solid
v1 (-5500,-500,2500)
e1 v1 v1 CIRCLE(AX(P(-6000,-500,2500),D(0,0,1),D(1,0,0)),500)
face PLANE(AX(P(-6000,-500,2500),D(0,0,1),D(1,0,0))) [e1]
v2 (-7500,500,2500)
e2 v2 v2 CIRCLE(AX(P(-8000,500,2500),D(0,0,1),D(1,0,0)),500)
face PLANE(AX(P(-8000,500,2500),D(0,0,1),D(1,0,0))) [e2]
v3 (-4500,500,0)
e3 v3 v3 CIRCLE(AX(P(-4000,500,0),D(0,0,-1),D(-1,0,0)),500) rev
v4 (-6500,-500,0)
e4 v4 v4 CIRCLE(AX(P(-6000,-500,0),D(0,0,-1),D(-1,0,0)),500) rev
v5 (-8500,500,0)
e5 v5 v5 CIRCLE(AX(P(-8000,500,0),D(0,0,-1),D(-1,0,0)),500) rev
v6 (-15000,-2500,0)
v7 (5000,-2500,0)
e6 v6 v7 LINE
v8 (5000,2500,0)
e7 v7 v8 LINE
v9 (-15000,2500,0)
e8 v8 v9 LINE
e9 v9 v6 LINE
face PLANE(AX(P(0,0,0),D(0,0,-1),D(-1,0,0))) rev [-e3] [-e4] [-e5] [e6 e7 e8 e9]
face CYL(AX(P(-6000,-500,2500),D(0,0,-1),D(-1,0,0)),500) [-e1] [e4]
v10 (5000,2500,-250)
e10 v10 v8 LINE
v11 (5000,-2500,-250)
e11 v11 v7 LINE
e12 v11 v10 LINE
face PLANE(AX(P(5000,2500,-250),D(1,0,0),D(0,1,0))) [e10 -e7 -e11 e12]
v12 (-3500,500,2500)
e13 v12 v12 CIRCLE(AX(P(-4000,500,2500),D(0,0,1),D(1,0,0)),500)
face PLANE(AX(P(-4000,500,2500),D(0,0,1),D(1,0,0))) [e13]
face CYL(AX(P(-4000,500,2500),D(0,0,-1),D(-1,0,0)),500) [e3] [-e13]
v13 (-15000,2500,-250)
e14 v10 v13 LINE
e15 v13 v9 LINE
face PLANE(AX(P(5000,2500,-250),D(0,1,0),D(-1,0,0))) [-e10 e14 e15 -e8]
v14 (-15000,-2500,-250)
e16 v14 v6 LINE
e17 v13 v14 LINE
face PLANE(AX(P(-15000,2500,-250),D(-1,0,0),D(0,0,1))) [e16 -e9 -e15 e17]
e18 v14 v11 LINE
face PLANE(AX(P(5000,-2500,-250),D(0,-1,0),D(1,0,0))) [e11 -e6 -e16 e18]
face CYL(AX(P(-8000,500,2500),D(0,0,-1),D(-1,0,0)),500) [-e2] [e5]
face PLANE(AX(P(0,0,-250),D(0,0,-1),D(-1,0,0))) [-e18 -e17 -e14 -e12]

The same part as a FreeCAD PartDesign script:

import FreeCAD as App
import Part
import Sketcher
from FreeCAD import Vector

doc = App.newDocument("Part")
params = doc.addObject("Spreadsheet::Sheet", "Params")
for row, (alias, value) in enumerate([
    ("sketch1_width", "20000 mm"),
    ("sketch1_height", "5000 mm"),
    ("pad1_length", "250 mm"),
    ("sketch2_diameter", "1000 mm"),
    ("pad2_length", "2500 mm"),
], start=1):
    params.set(f"A{row}", alias)
    params.set(f"B{row}", "=" + value)
    params.setAlias(f"B{row}", alias)

body = doc.addObject("PartDesign::Body", "Body")

# Sketch on XY plane
sketch1 = body.newObject("Sketcher::SketchObject", "Sketch")
sketch1.AttachmentSupport = (doc.getObject("XY_Plane"), [""])
sketch1.MapMode = "FlatFace"
sketch1.addGeometry(Part.LineSegment(Vector(-15000, 2500, 0), Vector(-15000, -2500, 0)), False)
sketch1.addGeometry(Part.LineSegment(Vector(-15000, -2500, 0), Vector(5000, -2500, 0)), False)
sketch1.addGeometry(Part.LineSegment(Vector(5000, -2500, 0), Vector(5000, 2500, 0)), False)
sketch1.addGeometry(Part.LineSegment(Vector(5000, 2500, 0), Vector(-15000, 2500, 0)), False)
sketch1.addConstraint(Sketcher.Constraint("Coincident", 0, 2, 1, 1))
sketch1.addConstraint(Sketcher.Constraint("Coincident", 1, 2, 2, 1))
sketch1.addConstraint(Sketcher.Constraint("Coincident", 2, 2, 3, 1))
sketch1.addConstraint(Sketcher.Constraint("Coincident", 3, 2, 0, 1))
sketch1.addConstraint(Sketcher.Constraint("Vertical", 0))
sketch1.addConstraint(Sketcher.Constraint("Horizontal", 1))
sketch1.addConstraint(Sketcher.Constraint("Vertical", 2))
sketch1.addConstraint(Sketcher.Constraint("Horizontal", 3))
sketch1.addConstraint(Sketcher.Constraint("DistanceX", 1, 1, 1, 2, 20000.0))
sketch1.addConstraint(Sketcher.Constraint("DistanceY", 0, 2, 0, 1, 5000.0))
sketch1.addConstraint(Sketcher.Constraint("DistanceX", 0, 2, -1, 1, 15000.0))
sketch1.addConstraint(Sketcher.Constraint("DistanceY", 0, 2, -1, 1, 2500.0))
sketch1.setExpression("Constraints[8]", "Params.sketch1_width")
sketch1.setExpression("Constraints[9]", "Params.sketch1_height")
pad1 = body.newObject("PartDesign::Pad", "Pad")
pad1.Profile = sketch1
pad1.setExpression("Length", "Params.pad1_length")
pad1.Reversed = True

# Sketch on XY plane
sketch2 = body.newObject("Sketcher::SketchObject", "Sketch001")
sketch2.AttachmentSupport = (doc.getObject("XY_Plane"), [""])
sketch2.MapMode = "FlatFace"
sketch2.addGeometry(Part.Circle(Vector(-8000, 500, 0), Vector(0, 0, 1), 500), False)
sketch2.addGeometry(Part.Circle(Vector(-6000, -500, 0), Vector(0, 0, 1), 500), False)
sketch2.addGeometry(Part.Circle(Vector(-4000, 500, 0), Vector(0, 0, 1), 500), False)
sketch2.addConstraint(Sketcher.Constraint("Equal", 0, 1))
sketch2.addConstraint(Sketcher.Constraint("Equal", 1, 2))
sketch2.addConstraint(Sketcher.Constraint("Horizontal", 0, 3, 2, 3))
sketch2.addConstraint(Sketcher.Constraint("Diameter", 0, 1000.0))
sketch2.addConstraint(Sketcher.Constraint("DistanceX", 0, 3, -1, 1, 8000.0))
sketch2.addConstraint(Sketcher.Constraint("DistanceY", -1, 1, 0, 3, 500.0))
sketch2.addConstraint(Sketcher.Constraint("DistanceX", 1, 3, -1, 1, 6000.0))
sketch2.addConstraint(Sketcher.Constraint("DistanceY", 1, 3, -1, 1, 500.0))
sketch2.addConstraint(Sketcher.Constraint("DistanceX", 2, 3, -1, 1, 4000.0))
sketch2.setExpression("Constraints[3]", "Params.sketch2_diameter")
pad2 = body.newObject("PartDesign::Pad", "Pad001")
pad2.Profile = sketch2
pad2.setExpression("Length", "Params.pad2_length")

doc.recompute()
